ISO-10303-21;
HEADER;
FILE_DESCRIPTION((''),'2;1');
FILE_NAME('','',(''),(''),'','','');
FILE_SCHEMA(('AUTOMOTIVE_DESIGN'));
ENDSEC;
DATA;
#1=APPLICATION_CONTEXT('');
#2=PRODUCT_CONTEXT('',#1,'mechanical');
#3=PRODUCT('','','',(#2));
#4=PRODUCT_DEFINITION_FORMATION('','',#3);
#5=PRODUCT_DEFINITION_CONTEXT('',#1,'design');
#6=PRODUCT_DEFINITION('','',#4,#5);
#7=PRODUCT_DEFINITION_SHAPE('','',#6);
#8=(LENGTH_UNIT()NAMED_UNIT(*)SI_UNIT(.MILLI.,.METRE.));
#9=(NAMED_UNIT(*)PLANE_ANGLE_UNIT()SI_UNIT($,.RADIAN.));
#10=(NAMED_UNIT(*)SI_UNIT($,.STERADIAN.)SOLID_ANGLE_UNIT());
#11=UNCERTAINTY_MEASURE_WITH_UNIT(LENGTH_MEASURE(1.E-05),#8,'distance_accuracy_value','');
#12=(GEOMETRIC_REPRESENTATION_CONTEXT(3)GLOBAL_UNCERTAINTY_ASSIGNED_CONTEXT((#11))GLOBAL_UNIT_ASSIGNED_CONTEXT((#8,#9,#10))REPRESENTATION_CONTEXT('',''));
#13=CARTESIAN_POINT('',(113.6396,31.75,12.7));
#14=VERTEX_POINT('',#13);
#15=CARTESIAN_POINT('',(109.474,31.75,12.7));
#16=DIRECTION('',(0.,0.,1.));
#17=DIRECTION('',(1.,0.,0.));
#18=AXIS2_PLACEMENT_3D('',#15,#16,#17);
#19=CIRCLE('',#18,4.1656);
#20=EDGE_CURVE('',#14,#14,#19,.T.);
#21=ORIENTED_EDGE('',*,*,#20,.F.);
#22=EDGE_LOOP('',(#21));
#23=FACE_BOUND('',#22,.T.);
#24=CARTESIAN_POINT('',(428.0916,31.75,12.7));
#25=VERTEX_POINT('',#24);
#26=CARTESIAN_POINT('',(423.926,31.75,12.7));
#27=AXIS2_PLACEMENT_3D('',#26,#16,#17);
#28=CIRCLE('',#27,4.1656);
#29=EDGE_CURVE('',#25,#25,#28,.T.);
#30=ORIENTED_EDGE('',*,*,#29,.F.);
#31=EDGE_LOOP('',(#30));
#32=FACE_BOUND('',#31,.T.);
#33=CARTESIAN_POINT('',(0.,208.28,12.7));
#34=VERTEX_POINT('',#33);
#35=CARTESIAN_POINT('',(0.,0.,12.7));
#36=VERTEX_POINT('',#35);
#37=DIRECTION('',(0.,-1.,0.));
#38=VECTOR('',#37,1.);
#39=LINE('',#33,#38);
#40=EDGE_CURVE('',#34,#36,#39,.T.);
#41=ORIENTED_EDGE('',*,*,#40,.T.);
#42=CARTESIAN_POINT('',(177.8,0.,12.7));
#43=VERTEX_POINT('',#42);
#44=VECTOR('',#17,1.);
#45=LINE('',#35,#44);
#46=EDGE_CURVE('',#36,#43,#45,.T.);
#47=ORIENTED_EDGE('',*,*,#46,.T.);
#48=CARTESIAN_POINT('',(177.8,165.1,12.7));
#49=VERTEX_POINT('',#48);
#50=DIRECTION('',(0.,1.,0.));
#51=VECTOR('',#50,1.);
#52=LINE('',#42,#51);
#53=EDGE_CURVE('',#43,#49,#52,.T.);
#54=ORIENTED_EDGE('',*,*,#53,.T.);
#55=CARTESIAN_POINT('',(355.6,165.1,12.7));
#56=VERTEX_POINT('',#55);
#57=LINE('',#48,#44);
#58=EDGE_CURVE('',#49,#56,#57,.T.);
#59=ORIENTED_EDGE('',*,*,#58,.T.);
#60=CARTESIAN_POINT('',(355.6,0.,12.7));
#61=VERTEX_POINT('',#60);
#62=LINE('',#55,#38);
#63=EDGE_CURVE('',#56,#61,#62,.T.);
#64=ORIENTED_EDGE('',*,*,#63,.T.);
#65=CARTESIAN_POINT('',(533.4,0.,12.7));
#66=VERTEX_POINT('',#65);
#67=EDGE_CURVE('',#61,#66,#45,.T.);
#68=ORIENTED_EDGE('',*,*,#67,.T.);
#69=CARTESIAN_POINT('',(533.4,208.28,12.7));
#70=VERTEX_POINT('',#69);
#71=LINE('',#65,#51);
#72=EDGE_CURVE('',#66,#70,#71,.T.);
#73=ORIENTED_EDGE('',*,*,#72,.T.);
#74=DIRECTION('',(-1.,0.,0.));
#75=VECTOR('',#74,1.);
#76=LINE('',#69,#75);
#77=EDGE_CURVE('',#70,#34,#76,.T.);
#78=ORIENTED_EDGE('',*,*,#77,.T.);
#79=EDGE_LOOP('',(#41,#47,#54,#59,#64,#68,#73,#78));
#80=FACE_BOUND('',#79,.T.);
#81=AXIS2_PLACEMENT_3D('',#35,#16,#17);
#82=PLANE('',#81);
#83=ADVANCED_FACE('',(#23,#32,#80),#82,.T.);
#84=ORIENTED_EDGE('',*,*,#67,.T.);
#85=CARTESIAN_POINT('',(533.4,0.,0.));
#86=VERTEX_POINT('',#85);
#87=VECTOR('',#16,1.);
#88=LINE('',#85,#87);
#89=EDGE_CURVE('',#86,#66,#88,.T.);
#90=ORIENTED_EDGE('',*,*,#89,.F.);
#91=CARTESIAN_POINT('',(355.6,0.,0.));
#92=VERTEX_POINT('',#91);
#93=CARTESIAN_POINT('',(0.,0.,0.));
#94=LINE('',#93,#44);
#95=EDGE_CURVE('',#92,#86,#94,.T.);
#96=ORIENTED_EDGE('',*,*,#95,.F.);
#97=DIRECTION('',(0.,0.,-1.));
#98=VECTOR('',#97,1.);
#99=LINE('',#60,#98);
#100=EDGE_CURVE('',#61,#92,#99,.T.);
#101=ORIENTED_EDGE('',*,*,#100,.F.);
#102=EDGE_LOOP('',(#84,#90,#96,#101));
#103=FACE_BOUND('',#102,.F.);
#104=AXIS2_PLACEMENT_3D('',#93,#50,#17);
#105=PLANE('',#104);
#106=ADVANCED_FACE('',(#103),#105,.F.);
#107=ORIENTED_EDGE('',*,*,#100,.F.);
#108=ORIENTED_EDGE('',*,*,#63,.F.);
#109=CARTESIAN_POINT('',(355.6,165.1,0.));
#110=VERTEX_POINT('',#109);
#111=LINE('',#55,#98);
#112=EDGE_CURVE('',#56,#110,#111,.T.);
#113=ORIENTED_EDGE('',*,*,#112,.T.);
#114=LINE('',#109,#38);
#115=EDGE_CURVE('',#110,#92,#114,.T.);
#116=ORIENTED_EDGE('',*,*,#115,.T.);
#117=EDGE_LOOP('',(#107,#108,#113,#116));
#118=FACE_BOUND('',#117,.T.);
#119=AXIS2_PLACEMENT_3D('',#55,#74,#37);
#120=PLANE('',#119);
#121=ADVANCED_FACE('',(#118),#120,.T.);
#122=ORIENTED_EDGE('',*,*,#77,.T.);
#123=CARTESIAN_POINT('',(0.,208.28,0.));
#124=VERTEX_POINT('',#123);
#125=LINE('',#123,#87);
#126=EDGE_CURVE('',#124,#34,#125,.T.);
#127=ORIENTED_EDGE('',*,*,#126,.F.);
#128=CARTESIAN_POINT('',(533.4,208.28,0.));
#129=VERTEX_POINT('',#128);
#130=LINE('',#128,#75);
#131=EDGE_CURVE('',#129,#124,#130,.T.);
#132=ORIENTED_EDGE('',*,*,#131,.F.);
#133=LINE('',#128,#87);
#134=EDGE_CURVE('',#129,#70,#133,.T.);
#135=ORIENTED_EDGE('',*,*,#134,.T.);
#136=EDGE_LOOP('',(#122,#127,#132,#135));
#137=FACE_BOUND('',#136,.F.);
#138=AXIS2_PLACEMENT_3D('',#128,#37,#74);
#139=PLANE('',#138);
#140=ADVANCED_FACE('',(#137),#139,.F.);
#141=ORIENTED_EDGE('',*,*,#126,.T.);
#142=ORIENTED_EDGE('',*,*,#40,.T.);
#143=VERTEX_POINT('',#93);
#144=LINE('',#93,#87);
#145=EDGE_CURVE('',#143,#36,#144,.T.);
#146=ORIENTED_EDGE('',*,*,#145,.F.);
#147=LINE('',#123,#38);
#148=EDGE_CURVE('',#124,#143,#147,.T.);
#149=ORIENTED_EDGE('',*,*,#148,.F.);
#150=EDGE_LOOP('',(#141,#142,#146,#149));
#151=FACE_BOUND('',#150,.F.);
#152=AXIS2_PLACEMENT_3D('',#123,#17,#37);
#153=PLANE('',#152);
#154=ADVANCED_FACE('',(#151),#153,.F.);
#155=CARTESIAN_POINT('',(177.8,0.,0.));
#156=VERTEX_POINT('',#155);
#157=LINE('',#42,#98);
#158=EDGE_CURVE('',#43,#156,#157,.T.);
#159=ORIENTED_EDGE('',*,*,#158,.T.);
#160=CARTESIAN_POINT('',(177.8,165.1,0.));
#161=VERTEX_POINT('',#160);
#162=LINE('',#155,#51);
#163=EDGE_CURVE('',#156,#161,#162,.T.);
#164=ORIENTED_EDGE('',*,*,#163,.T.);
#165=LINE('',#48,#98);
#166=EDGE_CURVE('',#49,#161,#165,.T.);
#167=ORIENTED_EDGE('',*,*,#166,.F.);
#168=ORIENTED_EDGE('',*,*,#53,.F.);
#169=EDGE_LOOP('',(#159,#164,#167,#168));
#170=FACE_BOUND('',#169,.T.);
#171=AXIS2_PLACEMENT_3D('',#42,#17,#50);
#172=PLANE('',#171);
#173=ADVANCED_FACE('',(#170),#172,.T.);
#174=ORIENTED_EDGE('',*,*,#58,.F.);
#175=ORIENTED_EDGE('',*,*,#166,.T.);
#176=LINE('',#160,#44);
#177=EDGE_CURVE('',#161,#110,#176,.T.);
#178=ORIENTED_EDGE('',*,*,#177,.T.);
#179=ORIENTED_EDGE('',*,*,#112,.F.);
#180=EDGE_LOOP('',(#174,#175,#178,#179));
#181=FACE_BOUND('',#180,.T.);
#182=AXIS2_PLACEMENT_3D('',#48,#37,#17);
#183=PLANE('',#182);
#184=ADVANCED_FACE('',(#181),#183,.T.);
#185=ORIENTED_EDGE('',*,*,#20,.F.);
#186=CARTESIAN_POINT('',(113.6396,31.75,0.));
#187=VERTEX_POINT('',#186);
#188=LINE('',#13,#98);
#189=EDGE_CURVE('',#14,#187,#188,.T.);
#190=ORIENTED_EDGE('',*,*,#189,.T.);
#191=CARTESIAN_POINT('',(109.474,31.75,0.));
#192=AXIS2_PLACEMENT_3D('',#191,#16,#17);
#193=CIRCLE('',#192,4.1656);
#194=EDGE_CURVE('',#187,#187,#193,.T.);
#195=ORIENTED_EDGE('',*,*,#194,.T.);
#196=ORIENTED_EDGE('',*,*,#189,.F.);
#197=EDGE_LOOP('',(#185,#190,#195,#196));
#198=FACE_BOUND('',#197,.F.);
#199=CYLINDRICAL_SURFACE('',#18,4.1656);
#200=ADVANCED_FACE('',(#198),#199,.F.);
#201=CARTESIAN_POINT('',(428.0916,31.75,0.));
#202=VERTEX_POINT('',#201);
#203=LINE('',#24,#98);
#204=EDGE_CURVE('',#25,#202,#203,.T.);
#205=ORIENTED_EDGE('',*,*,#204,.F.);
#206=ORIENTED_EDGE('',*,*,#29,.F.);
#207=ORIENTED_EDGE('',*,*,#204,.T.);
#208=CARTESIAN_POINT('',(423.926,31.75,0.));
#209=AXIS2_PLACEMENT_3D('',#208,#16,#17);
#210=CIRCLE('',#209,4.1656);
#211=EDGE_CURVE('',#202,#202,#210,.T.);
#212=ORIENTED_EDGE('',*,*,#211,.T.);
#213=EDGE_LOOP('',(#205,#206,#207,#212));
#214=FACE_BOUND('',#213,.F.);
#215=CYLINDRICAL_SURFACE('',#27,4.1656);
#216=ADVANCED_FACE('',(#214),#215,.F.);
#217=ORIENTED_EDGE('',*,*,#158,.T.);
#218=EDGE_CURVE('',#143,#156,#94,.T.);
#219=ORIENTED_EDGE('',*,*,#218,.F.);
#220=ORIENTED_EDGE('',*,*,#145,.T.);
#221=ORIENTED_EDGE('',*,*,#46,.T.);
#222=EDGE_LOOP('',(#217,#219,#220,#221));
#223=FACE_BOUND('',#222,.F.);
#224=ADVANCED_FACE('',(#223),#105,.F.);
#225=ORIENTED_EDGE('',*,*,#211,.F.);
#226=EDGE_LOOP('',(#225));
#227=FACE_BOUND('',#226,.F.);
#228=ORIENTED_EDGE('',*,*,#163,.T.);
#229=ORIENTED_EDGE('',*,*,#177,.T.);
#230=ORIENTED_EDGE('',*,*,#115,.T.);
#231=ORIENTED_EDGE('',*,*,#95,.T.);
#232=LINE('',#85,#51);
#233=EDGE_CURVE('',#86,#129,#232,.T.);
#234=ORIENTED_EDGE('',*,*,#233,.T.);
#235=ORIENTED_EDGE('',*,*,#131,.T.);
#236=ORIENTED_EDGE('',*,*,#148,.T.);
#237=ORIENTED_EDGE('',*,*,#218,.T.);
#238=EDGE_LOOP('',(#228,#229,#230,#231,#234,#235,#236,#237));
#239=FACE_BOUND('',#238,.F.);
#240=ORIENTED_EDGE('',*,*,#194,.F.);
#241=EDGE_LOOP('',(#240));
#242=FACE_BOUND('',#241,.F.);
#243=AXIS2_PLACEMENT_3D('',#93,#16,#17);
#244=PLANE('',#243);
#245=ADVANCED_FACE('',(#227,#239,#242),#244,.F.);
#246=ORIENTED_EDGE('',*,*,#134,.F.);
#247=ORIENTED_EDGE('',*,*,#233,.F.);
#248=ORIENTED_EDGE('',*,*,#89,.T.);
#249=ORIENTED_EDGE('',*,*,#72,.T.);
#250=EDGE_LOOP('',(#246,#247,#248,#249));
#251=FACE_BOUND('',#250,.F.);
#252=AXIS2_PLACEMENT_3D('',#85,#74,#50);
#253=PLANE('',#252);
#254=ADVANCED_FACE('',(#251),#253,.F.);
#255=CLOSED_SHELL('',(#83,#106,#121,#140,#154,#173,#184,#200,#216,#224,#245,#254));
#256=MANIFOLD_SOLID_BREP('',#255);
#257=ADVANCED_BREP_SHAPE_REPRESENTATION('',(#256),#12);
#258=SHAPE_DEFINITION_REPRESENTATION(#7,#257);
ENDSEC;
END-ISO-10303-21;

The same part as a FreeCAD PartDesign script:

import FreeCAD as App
import Part
import Sketcher
Q = App.Units.Quantity

doc = App.newDocument("Part")
body = doc.addObject("PartDesign::Body", "Body")

sketch1 = body.newObject("Sketcher::SketchObject", "Sketch")
sketch1.AttachmentSupport = (doc.getObject("XY_Plane"), [""])
sketch1.MapMode = "FlatFace"
sketch1.addGeometry([
    Part.LineSegment(App.Vector(0, 208.28, 0), App.Vector(0, 0, 0)),
    Part.LineSegment(App.Vector(0, 0, 0), App.Vector(533.4, 0, 0)),
    Part.LineSegment(App.Vector(533.4, 0, 0), App.Vector(533.4, 208.28, 0)),
    Part.LineSegment(App.Vector(533.4, 208.28, 0), App.Vector(0, 208.28, 0)),
], False)
sketch1.addConstraint([
    Sketcher.Constraint("Coincident", 0, 2, 1, 1),
    Sketcher.Constraint("Coincident", 1, 2, 2, 1),
    Sketcher.Constraint("Coincident", 2, 2, 3, 1),
    Sketcher.Constraint("Coincident", 3, 2, 0, 1),
    Sketcher.Constraint("Vertical", 0),
    Sketcher.Constraint("Horizontal", 1),
    Sketcher.Constraint("Vertical", 2),
    Sketcher.Constraint("Horizontal", 3),
    Sketcher.Constraint("Coincident", 0, 2, -1, 1),
    Sketcher.Constraint("DistanceX", 1, 1, 1, 2, Q("21 in")),
    Sketcher.Constraint("DistanceY", 0, 2, 0, 1, Q("8.2 in")),
])
pad1 = body.newObject("PartDesign::Pad", "Pad")
pad1.Profile = sketch1
pad1.Length = Q("0.5 in")

sketch2 = body.newObject("Sketcher::SketchObject", "Sketch001")
sketch2.AttachmentSupport = (doc.getObject("XY_Plane"), [""])
sketch2.MapMode = "FlatFace"
sketch2.AttachmentOffset = App.Placement(App.Vector(0, 0, 0.5 * 25.4), App.Rotation())
sketch2.addGeometry([
    Part.LineSegment(App.Vector(177.8, 165.1, 0), App.Vector(177.8, 0, 0)),
    Part.LineSegment(App.Vector(177.8, 0, 0), App.Vector(355.6, 0, 0)),
    Part.LineSegment(App.Vector(355.6, 0, 0), App.Vector(355.6, 165.1, 0)),
    Part.LineSegment(App.Vector(355.6, 165.1, 0), App.Vector(177.8, 165.1, 0)),
], False)
sketch2.addConstraint([
    Sketcher.Constraint("Coincident", 0, 2, 1, 1),
    Sketcher.Constraint("Coincident", 1, 2, 2, 1),
    Sketcher.Constraint("Coincident", 2, 2, 3, 1),
    Sketcher.Constraint("Coincident", 3, 2, 0, 1),
    Sketcher.Constraint("Vertical", 0),
    Sketcher.Constraint("Horizontal", 1),
    Sketcher.Constraint("Vertical", 2),
    Sketcher.Constraint("Horizontal", 3),
    Sketcher.Constraint("PointOnObject", 0, 2, -1),
    Sketcher.Constraint("DistanceX", 1, 1, 1, 2, Q("7 in")),
    Sketcher.Constraint("DistanceY", 0, 2, 0, 1, Q("6.5 in")),
    Sketcher.Constraint("DistanceX", -1, 1, 0, 2, Q("7 in")),
])
pocket1 = body.newObject("PartDesign::Pocket", "Pocket")
pocket1.Profile = sketch2
pocket1.Length = Q("0.5 in")

sketch3 = body.newObject("Sketcher::SketchObject", "Sketch002")
sketch3.AttachmentSupport = (doc.getObject("XY_Plane"), [""])
sketch3.MapMode = "FlatFace"
sketch3.AttachmentOffset = App.Placement(App.Vector(0, 0, 0.5 * 25.4), App.Rotation())
sketch3.addGeometry([
    Part.Circle(App.Vector(423.926, 31.75, 0), App.Vector(0, 0, 1), 4.1656),
    Part.Circle(App.Vector(109.474, 31.75, 0), App.Vector(0, 0, 1), 4.1656),
], False)
sketch3.addConstraint([
    Sketcher.Constraint("Equal", 0, 1),
    Sketcher.Constraint("Horizontal", 0, 3, 1, 3),
    Sketcher.Constraint("Diameter", 0, Q("0.328 in")),
    Sketcher.Constraint("DistanceY", -1, 1, 0, 3, Q("1.25 in")),
    Sketcher.Constraint("DistanceX", -1, 1, 1, 3, Q("4.31 in")),
    Sketcher.Constraint("DistanceX", -1, 1, 0, 3, Q("16.69 in")),
])
pocket2 = body.newObject("PartDesign::Pocket", "Pocket001")
pocket2.Profile = sketch3
pocket2.Length = Q("1 in")

doc.recompute()
